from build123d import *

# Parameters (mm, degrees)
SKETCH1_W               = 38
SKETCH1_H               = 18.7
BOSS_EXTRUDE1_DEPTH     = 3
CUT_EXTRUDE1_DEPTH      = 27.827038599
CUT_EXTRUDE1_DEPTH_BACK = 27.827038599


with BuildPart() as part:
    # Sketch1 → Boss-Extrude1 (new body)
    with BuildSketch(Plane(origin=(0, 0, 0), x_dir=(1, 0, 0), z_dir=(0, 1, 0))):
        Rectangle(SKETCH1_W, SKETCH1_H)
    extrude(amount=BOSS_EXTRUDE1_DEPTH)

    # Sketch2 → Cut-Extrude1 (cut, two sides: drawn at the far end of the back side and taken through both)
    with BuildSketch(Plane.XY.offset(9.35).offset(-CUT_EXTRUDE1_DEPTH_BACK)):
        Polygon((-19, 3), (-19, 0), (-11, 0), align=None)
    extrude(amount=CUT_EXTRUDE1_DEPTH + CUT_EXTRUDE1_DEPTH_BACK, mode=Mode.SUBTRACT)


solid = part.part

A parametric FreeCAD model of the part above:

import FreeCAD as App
import Part
import Sketcher
from FreeCAD import Vector

doc = App.newDocument("Part")
body = doc.addObject("PartDesign::Body", "Body")

sketch1 = body.newObject("Sketcher::SketchObject", "Sketch")
sketch1.AttachmentSupport = (doc.getObject("XZ_Plane"), [""])
sketch1.MapMode = "FlatFace"
sketch1.addGeometry(Part.LineSegment(Vector(-19, -9.35, 0), Vector(-19, 9.35, 0)), False)
sketch1.addGeometry(Part.LineSegment(Vector(-19, 9.35, 0), Vector(19, 9.35, 0)), False)
sketch1.addGeometry(Part.LineSegment(Vector(19, 9.35, 0), Vector(19, -9.35, 0)), False)
sketch1.addGeometry(Part.LineSegment(Vector(19, -9.35, 0), Vector(-19, -9.35, 0)), False)
sketch1.addConstraint(Sketcher.Constraint("Coincident", 0, 2, 1, 1))
sketch1.addConstraint(Sketcher.Constraint("Coincident", 1, 2, 2, 1))
sketch1.addConstraint(Sketcher.Constraint("Coincident", 2, 2, 3, 1))
sketch1.addConstraint(Sketcher.Constraint("Coincident", 3, 2, 0, 1))
sketch1.addConstraint(Sketcher.Constraint("Vertical", 0))
sketch1.addConstraint(Sketcher.Constraint("Horizontal", 1))
sketch1.addConstraint(Sketcher.Constraint("Vertical", 2))
sketch1.addConstraint(Sketcher.Constraint("Horizontal", 3))
sketch1.addConstraint(Sketcher.Constraint("Symmetric", 0, 2, 2, 2, -1, 1))
sketch1.addConstraint(Sketcher.Constraint("DistanceX", 1, 1, 1, 2, 38.0))
sketch1.addConstraint(Sketcher.Constraint("DistanceY", 0, 1, 0, 2, 18.7))
pad1 = body.newObject("PartDesign::Pad", "Pad")
pad1.Profile = sketch1
pad1.Length = 3
pad1.Reversed = True

sketch2 = body.newObject("Sketcher::SketchObject", "Sketch001")
sketch2.AttachmentSupport = (doc.getObject("XY_Plane"), [""])
sketch2.MapMode = "FlatFace"
sketch2.AttachmentOffset = App.Placement(Vector(0, 0, 9.35), App.Rotation())
sketch2.addGeometry(Part.LineSegment(Vector(-19, 3, 0), Vector(-19, 0, 0)), False)
sketch2.addGeometry(Part.LineSegment(Vector(-19, 0, 0), Vector(-11, 0, 0)), False)
sketch2.addGeometry(Part.LineSegment(Vector(-11, 0, 0), Vector(-19, 3, 0)), False)
sketch2.addConstraint(Sketcher.Constraint("Coincident", 0, 2, 1, 1))
sketch2.addConstraint(Sketcher.Constraint("Coincident", 1, 2, 2, 1))
sketch2.addConstraint(Sketcher.Constraint("Coincident", 2, 2, 0, 1))
sketch2.addConstraint(Sketcher.Constraint("Vertical", 0))
sketch2.addConstraint(Sketcher.Constraint("Horizontal", 1))
sketch2.addConstraint(Sketcher.Constraint("PointOnObject", 0, 2, -1))
sketch2.addConstraint(Sketcher.Constraint("DistanceX", 1, 1, 1, 2, 8.0))
sketch2.addConstraint(Sketcher.Constraint("DistanceY", 0, 2, 0, 1, 3.0))
sketch2.addConstraint(Sketcher.Constraint("DistanceX", 0, 2, -1, 1, 19.0))
pocket1 = body.newObject("PartDesign::Pocket", "Pocket")
pocket1.Profile = sketch2
pocket1.Type = "ThroughAll"
pocket1.Midplane = True

doc.recompute()
